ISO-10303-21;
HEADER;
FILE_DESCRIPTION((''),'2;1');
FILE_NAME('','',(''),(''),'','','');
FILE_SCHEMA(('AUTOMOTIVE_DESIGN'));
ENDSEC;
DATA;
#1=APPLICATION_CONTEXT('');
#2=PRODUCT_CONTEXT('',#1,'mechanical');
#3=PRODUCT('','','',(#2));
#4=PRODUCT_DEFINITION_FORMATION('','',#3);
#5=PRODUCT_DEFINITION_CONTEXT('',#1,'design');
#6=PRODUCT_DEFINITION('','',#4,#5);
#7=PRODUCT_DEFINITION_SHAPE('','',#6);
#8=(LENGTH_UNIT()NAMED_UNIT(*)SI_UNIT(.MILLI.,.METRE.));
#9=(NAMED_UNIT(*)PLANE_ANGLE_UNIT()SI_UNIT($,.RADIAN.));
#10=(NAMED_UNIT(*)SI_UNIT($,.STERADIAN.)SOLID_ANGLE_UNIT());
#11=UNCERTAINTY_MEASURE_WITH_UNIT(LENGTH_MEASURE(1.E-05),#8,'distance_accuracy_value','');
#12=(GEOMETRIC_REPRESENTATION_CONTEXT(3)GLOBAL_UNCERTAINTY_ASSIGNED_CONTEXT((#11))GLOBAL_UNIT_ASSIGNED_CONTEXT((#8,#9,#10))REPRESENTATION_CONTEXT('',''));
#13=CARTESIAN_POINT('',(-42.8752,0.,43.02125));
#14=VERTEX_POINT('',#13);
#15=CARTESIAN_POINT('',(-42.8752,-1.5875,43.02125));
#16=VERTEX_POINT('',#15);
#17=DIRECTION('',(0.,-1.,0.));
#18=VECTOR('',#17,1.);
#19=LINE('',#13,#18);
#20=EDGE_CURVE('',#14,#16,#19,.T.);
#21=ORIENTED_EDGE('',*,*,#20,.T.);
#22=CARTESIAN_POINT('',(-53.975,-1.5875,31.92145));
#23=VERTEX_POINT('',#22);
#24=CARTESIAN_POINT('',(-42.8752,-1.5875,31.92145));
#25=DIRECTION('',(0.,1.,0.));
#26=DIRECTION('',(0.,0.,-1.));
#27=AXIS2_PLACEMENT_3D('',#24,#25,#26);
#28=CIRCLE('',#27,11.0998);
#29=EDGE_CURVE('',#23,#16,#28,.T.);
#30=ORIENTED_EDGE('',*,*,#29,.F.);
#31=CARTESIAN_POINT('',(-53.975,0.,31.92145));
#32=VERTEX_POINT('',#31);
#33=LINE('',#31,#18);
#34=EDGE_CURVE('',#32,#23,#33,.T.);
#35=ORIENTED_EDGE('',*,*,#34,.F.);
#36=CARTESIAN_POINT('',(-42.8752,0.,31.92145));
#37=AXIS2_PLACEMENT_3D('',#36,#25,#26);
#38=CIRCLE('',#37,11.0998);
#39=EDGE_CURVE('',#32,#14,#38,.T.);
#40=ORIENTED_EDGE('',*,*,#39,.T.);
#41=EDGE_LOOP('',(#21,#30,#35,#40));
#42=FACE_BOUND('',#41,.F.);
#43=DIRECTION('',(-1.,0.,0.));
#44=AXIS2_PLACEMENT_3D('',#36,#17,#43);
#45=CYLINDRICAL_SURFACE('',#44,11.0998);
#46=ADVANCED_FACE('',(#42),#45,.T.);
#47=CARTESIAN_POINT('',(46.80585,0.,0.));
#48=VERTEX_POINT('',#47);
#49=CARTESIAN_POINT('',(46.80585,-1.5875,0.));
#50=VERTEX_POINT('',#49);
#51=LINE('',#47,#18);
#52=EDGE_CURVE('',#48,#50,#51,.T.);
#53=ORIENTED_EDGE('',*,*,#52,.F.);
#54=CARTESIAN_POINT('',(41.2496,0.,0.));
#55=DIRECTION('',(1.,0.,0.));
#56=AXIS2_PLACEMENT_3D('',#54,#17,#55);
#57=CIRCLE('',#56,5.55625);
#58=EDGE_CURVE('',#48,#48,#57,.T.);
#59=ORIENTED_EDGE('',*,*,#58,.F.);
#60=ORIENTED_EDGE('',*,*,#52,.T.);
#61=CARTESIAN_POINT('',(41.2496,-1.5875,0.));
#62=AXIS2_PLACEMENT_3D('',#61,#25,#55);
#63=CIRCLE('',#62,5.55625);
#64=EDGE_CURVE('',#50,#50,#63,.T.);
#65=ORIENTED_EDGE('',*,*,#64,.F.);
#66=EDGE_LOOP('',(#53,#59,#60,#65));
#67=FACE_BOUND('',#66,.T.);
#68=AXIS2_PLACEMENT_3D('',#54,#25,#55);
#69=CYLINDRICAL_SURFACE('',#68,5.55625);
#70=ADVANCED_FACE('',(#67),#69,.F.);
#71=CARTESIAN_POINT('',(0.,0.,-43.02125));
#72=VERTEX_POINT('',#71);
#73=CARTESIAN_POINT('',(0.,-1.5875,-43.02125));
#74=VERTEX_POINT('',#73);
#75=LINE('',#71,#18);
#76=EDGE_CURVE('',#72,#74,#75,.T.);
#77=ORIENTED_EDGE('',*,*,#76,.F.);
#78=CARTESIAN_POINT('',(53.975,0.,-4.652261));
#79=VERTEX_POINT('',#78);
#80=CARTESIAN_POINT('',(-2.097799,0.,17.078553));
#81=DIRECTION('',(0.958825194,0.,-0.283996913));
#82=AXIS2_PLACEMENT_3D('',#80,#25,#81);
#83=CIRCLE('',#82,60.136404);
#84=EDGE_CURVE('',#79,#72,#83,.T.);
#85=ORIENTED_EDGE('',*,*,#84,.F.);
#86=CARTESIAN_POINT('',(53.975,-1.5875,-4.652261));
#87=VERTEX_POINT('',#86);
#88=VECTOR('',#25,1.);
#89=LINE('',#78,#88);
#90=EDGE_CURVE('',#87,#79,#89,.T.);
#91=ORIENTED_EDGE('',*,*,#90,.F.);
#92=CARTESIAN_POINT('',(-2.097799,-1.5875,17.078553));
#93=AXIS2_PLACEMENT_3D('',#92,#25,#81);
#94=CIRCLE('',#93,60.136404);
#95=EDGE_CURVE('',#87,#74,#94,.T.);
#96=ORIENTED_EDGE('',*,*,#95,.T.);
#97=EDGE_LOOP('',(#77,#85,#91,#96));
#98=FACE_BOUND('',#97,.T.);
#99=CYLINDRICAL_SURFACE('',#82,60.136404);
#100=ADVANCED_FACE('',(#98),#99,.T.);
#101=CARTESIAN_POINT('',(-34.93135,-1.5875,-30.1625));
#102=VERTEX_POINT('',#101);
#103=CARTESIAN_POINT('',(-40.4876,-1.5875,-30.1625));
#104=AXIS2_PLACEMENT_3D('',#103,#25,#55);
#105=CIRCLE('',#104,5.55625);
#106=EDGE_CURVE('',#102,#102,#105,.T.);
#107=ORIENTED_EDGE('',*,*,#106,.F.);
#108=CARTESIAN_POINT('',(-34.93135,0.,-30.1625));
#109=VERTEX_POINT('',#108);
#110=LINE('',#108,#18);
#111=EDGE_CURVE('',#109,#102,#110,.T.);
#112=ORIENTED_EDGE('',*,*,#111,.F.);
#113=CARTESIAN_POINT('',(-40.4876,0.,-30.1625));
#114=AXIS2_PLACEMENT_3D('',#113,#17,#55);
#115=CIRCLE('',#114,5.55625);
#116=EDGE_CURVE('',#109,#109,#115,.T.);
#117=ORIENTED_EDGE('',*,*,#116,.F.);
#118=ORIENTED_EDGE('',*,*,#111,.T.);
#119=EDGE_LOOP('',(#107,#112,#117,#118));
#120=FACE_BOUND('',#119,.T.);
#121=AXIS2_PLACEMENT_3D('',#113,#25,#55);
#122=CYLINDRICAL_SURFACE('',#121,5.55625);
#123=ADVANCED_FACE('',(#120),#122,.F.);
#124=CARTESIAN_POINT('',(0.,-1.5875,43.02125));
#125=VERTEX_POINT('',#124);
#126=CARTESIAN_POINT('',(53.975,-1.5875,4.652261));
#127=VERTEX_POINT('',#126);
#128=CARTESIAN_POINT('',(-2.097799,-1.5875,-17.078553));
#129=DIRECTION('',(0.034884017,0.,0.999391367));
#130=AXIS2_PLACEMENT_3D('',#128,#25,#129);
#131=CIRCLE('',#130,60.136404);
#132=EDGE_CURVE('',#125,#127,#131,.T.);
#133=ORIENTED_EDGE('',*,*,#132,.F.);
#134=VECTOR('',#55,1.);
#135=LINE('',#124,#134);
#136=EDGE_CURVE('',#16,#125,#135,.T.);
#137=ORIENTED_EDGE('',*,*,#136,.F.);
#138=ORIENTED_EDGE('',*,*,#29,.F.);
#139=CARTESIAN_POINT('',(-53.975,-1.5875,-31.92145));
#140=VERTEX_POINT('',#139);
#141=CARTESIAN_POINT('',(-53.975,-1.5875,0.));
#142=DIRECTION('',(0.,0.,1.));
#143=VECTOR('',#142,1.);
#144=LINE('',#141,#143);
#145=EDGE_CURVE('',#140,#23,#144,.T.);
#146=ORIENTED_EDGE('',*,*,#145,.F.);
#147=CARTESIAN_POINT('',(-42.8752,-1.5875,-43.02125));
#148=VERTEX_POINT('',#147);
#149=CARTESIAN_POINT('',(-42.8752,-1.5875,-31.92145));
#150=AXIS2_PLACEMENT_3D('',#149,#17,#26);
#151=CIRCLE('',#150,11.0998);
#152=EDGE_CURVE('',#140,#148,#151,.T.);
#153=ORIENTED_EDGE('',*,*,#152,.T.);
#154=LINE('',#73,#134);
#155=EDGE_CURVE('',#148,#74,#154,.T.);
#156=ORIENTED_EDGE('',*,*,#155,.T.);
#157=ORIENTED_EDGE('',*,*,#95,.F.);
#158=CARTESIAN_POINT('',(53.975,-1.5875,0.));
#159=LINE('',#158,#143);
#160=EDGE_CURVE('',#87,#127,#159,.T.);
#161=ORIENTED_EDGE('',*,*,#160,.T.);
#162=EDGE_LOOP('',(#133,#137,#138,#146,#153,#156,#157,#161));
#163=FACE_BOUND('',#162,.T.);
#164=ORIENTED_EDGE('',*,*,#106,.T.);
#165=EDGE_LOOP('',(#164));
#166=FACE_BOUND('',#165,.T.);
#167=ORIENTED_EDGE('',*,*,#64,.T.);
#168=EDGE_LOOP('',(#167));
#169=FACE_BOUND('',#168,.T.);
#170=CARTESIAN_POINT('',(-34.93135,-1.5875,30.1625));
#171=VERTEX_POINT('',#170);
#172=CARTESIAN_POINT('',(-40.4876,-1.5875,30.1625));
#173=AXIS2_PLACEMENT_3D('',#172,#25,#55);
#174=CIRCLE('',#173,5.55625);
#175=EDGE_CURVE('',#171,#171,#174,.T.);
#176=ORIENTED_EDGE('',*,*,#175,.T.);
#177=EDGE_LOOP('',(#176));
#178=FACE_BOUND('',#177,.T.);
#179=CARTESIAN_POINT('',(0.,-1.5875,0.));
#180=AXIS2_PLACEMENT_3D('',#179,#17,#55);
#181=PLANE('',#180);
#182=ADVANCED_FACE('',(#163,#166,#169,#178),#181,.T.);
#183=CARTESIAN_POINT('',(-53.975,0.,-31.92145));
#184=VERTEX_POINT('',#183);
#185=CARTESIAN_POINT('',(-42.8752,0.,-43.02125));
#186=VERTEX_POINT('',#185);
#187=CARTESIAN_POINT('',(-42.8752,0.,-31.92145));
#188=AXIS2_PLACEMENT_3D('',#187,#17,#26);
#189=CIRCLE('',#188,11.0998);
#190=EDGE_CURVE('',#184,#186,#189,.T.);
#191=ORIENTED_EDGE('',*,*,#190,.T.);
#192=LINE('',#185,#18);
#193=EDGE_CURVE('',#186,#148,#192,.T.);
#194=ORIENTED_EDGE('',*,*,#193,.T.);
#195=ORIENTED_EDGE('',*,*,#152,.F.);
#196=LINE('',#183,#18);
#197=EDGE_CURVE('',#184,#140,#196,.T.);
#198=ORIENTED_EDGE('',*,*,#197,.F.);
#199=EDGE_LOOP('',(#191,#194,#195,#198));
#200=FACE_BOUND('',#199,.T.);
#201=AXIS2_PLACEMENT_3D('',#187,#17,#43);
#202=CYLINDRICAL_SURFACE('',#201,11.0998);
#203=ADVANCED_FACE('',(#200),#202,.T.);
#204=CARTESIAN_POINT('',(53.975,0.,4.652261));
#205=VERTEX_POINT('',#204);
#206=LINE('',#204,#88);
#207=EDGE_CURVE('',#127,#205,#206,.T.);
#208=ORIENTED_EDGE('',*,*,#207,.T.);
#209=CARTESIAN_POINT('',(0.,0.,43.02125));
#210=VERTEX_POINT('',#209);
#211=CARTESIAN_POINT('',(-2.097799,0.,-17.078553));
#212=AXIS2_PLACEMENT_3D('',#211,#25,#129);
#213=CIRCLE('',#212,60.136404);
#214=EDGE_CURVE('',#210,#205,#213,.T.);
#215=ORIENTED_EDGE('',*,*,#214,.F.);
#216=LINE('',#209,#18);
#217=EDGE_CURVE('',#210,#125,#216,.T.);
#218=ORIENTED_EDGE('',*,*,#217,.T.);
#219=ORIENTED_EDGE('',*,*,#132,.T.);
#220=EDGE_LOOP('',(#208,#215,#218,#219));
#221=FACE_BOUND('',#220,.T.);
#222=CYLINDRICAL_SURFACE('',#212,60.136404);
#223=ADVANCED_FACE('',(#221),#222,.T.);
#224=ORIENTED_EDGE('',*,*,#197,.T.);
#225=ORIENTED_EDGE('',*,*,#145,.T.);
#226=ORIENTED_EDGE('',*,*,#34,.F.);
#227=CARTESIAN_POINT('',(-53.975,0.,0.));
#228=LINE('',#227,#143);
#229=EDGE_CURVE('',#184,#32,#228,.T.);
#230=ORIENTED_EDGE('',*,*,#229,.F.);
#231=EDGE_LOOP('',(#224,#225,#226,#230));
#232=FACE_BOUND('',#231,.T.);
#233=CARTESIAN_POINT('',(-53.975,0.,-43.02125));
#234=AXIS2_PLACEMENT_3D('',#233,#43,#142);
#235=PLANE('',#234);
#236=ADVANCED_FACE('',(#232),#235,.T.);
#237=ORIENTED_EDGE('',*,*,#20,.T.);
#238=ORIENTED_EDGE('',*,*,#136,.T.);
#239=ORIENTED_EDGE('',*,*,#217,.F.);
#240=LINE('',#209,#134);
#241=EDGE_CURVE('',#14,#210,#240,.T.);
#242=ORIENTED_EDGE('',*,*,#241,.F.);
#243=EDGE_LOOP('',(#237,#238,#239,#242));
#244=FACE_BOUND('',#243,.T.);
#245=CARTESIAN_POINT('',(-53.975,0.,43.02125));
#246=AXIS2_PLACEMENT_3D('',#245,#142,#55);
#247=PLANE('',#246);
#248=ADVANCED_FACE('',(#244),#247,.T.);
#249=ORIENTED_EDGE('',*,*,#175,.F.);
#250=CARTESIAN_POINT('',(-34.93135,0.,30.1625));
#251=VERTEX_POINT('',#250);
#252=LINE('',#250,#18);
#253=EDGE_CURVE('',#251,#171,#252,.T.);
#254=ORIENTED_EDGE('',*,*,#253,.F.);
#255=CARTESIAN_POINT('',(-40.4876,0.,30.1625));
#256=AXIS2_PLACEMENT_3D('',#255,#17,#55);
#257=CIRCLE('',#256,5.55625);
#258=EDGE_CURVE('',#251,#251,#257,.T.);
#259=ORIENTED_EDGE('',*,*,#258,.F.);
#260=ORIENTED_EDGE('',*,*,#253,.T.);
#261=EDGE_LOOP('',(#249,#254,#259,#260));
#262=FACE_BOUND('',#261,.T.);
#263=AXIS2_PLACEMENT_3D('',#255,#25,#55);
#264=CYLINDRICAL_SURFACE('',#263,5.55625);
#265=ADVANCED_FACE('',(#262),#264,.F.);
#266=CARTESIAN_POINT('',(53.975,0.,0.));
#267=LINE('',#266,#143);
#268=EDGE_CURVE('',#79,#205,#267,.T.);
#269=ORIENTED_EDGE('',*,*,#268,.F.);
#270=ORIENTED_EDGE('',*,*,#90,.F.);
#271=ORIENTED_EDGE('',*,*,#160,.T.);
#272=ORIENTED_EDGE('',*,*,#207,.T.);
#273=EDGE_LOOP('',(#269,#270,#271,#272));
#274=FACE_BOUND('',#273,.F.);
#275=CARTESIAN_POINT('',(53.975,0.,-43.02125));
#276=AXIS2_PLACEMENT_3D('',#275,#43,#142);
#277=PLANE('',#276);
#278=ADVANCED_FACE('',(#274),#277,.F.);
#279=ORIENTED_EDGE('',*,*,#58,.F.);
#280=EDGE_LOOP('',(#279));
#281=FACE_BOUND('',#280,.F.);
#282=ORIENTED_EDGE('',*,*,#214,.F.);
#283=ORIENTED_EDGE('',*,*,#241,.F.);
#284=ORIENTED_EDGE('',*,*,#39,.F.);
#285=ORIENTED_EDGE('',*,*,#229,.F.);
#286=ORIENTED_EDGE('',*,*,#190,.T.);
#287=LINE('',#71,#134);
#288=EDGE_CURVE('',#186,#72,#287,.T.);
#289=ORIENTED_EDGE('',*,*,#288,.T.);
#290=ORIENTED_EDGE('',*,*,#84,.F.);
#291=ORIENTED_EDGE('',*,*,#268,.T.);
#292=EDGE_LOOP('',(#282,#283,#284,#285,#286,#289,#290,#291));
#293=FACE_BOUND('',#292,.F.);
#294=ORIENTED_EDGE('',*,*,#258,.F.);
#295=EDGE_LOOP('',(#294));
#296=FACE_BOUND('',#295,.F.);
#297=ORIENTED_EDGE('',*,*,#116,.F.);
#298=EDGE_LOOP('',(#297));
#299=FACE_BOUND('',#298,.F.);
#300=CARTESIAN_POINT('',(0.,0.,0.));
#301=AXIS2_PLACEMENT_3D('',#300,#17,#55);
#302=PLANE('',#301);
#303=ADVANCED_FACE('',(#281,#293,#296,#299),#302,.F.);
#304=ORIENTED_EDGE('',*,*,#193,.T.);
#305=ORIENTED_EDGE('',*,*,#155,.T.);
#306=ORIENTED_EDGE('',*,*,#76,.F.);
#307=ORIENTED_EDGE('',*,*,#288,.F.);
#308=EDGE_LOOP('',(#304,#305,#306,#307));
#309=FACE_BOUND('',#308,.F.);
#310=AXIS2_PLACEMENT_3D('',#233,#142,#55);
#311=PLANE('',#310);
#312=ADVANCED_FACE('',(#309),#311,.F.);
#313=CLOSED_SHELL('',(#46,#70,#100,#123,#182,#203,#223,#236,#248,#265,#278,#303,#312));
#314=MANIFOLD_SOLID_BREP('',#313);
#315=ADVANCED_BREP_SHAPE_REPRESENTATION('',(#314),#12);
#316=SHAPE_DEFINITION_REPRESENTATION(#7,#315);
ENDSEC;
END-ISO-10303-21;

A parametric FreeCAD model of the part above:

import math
import FreeCAD as App
import Part
import Sketcher

V = App.Vector
Q = App.Units.Quantity


def edges_at(feature, points):
    """Names of the edges that pass closest to the given points."""
    edges = feature.Shape.Edges
    near = lambda p: min(range(len(edges)), key=lambda i: edges[i].distToShape(Part.Vertex(*p))[0])
    return sorted({f"Edge{near(p) + 1}" for p in points})

doc = App.newDocument("Part")
body = doc.addObject("PartDesign::Body", "Body")

# Sketch on XZ plane
sketch1 = body.newObject("Sketcher::SketchObject", "Sketch")
sketch1.AttachmentSupport = (doc.getObject("XZ_Plane"), [""])
sketch1.MapMode = "FlatFace"
sketch1.addGeometry([
    Part.LineSegment(V(-53.975, 43.02125, 0), V(-53.975, -43.02125, 0)),
    Part.LineSegment(V(-53.975, -43.02125, 0), V(53.975, -43.02125, 0)),
    Part.LineSegment(V(53.975, -43.02125, 0), V(53.975, 43.02125, 0)),
    Part.LineSegment(V(53.975, 43.02125, 0), V(-53.975, 43.02125, 0)),
], False)
sketch1.addConstraint([
    Sketcher.Constraint("Coincident", 0, 2, 1, 1),
    Sketcher.Constraint("Coincident", 1, 2, 2, 1),
    Sketcher.Constraint("Coincident", 2, 2, 3, 1),
    Sketcher.Constraint("Coincident", 3, 2, 0, 1),
    Sketcher.Constraint("Vertical", 0),
    Sketcher.Constraint("Horizontal", 1),
    Sketcher.Constraint("Vertical", 2),
    Sketcher.Constraint("Horizontal", 3),
    Sketcher.Constraint("Symmetric", 0, 2, 2, 2, -1, 1),
    Sketcher.Constraint("DistanceX", 1, 1, 1, 2, Q("4.25 in")),
    Sketcher.Constraint("DistanceY", 0, 2, 0, 1, Q("3.3875 in")),
])
pad1 = body.newObject("PartDesign::Pad", "Pad")
pad1.Profile = sketch1
pad1.Length = Q("0.0625 in")
doc.recompute()

fillet = body.newObject("PartDesign::Fillet", "Fillet")
fillet.Base = (pad1, edges_at(pad1, [(-53.975, -0.794, 43.021), (-53.975, -0.794, -43.021)]))
fillet.Radius = Q("0.437 in")

# Sketch on XZ plane
sketch2 = body.newObject("Sketcher::SketchObject", "Sketch001")
sketch2.AttachmentSupport = (doc.getObject("XZ_Plane"), [""])
sketch2.MapMode = "FlatFace"
sketch2.addGeometry([
    Part.Circle(V(-40.4876, 30.1625, 0), V(0, 0, 1), 5.55625),
    Part.Circle(V(-40.4876, -30.1625, 0), V(0, 0, 1), 5.55625),
    Part.Circle(V(41.2496, 0, 0), V(0, 0, 1), 5.55625),
], False)
sketch2.addConstraint([
    Sketcher.Constraint("Equal", 0, 1),
    Sketcher.Constraint("Equal", 1, 2),
    Sketcher.Constraint("Symmetric", 0, 3, 1, 3, -1),
    Sketcher.Constraint("PointOnObject", 2, 3, -1),
    Sketcher.Constraint("Diameter", 0, Q("0.4375 in")),
    Sketcher.Constraint("DistanceX", 0, 3, -1, 1, Q("1.594 in")),
    Sketcher.Constraint("DistanceY", -1, 1, 0, 3, Q("1.1875 in")),
    Sketcher.Constraint("DistanceX", -1, 1, 2, 3, Q("1.624 in")),
])
pocket1 = body.newObject("PartDesign::Pocket", "Pocket")
pocket1.Profile = sketch2
pocket1.Type = "ThroughAll"
pocket1.Reversed = True

# Sketch on XZ plane
sketch3 = body.newObject("Sketcher::SketchObject", "Sketch002")
sketch3.AttachmentSupport = (doc.getObject("XZ_Plane"), [""])
sketch3.MapMode = "FlatFace"
sketch3.addGeometry([
    Part.ArcOfCircle(Part.Circle(V(-2.097799, -17.078553, 0), V(0, 0, 1), 60.136404), math.radians(16.498899), math.radians(88.000887)),  # 0
    Part.ArcOfCircle(Part.Circle(V(-2.097799, 17.078553, 0), V(0, 0, 1), 60.136404), math.radians(-88.000887), math.radians(-16.498899)),  # 1
    Part.LineSegment(V(0, -43.02125, 0), V(73.436641, -43.02125, 0)),  # 2
    Part.LineSegment(V(73.436641, -43.02125, 0), V(73.436641, 43.02125, 0)),  # 3
    Part.LineSegment(V(73.436641, 43.02125, 0), V(0, 43.02125, 0)),  # 4
], False)
sketch3.addConstraint([
    Sketcher.Constraint("Coincident", 0, 1, 1, 2),
    Sketcher.Constraint("Coincident", 1, 1, 2, 1),
    Sketcher.Constraint("Coincident", 2, 2, 3, 1),
    Sketcher.Constraint("Coincident", 3, 2, 4, 1),
    Sketcher.Constraint("Coincident", 4, 2, 0, 2),
    Sketcher.Constraint("Horizontal", 2),
    Sketcher.Constraint("Vertical", 3),
    Sketcher.Constraint("Horizontal", 4),
    Sketcher.Constraint("Equal", 0, 1),
    Sketcher.Constraint("Symmetric", 1, 1, 4, 2, -1, 1),
    Sketcher.Constraint("Symmetric", 0, 3, 1, 3, -1),
    Sketcher.Constraint("DistanceY", 3, 1, 3, 2, Q("3.3875 in")),
    Sketcher.Constraint("DistanceX", -1, 1, 0, 1, Q("2.1875 in")),
    Sketcher.Constraint("Radius", 0, 60.136404),
    Sketcher.Constraint("DistanceX", 2, 1, 2, 2, 73.436641),
])
pocket2 = body.newObject("PartDesign::Pocket", "Pocket001")
pocket2.Profile = sketch3
pocket2.Type = "ThroughAll"
pocket2.Reversed = True

doc.recompute()
